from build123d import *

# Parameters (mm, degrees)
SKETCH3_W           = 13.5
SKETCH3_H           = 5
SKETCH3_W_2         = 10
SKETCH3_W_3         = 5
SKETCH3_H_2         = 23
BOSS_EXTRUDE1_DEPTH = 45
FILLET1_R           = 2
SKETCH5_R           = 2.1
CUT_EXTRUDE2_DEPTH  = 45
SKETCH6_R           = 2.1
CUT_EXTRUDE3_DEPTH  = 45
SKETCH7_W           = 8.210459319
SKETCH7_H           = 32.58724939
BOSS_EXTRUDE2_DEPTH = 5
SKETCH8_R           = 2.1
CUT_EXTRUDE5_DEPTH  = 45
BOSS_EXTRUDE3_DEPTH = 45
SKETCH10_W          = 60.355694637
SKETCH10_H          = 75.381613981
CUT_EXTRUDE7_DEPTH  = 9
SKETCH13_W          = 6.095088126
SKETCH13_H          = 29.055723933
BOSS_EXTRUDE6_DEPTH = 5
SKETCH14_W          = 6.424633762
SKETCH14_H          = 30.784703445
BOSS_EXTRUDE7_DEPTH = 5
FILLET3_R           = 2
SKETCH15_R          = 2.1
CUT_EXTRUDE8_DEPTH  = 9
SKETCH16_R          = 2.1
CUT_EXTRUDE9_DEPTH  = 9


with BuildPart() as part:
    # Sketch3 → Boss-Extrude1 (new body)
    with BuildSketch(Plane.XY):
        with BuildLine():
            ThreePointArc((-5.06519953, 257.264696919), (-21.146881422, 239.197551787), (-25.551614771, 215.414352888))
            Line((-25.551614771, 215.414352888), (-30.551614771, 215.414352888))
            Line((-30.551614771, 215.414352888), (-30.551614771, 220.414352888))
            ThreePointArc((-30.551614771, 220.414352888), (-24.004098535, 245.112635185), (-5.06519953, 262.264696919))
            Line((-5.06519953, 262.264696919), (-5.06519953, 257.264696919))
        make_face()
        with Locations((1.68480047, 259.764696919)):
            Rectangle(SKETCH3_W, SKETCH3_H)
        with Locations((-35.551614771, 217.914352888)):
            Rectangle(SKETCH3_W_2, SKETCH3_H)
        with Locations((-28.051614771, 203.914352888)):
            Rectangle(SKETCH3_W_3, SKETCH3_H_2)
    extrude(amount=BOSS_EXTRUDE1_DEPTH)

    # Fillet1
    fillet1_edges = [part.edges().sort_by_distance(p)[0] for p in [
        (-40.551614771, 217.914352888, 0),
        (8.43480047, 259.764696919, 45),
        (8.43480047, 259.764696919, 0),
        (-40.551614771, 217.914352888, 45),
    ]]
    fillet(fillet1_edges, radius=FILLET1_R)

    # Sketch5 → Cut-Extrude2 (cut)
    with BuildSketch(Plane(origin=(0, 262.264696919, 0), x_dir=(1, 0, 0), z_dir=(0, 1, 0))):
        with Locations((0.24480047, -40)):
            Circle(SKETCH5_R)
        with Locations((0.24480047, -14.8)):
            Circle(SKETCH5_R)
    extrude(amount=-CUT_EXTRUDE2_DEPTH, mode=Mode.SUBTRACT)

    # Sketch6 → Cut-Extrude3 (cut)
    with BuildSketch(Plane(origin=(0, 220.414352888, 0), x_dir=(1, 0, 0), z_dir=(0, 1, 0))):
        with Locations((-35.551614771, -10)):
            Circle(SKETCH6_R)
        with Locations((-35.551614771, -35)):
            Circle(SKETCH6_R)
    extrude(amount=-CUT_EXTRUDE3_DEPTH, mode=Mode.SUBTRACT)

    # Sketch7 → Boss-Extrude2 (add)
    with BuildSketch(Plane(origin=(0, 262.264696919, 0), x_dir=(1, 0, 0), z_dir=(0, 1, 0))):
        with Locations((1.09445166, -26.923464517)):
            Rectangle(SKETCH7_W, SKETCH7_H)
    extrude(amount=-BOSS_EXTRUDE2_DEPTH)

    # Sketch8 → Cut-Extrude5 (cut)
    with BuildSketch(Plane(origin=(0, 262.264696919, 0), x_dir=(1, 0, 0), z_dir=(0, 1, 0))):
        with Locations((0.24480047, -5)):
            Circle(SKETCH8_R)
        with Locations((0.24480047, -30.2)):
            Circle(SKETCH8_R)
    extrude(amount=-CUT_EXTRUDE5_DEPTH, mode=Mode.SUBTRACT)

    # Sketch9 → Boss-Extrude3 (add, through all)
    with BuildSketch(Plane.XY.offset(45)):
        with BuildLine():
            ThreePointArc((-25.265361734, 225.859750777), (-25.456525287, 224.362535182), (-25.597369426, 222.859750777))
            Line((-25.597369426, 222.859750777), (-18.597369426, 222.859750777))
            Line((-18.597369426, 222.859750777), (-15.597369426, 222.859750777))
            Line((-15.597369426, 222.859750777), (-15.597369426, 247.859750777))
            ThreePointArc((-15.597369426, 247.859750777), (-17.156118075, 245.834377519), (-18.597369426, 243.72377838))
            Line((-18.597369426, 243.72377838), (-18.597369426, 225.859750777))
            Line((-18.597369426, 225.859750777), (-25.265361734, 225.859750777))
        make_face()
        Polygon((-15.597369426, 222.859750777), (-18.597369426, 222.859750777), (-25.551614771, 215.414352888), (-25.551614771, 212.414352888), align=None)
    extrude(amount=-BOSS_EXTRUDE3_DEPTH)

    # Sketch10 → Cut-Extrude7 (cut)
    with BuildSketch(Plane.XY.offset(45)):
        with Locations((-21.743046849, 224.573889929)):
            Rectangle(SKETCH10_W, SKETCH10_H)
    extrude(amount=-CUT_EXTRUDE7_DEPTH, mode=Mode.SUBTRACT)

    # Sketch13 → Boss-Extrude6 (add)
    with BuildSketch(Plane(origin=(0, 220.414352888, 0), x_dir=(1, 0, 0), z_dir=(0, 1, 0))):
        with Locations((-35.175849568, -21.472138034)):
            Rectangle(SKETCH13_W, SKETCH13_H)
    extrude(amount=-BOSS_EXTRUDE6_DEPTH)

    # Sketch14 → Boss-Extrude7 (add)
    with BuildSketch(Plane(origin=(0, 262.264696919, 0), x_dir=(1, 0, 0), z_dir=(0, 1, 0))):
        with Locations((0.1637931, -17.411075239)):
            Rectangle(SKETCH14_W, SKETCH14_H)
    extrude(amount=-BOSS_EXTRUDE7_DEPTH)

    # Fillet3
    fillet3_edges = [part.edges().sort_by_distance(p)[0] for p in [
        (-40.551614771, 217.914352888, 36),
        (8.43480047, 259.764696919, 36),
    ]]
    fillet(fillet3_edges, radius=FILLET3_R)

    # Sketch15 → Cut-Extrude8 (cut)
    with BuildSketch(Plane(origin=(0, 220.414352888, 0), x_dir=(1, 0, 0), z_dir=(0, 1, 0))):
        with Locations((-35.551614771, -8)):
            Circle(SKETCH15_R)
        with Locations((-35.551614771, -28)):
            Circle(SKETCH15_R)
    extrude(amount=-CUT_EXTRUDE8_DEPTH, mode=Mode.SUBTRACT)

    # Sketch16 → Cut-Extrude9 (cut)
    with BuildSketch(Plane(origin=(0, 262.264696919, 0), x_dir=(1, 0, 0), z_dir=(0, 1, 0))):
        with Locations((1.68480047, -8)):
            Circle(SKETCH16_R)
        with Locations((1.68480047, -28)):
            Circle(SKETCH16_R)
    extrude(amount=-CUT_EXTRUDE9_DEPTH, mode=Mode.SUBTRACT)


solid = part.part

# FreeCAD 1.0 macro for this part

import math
import FreeCAD as App
import Part
import Sketcher
Q = App.Units.Quantity


def edges_at(feature, points):
    """Names of the edges that pass closest to the given points."""
    edges = feature.Shape.Edges
    near = lambda p: min(range(len(edges)), key=lambda i: edges[i].distToShape(Part.Vertex(*p))[0])
    return sorted({f"Edge{near(p) + 1}" for p in points})


def add_polygon(sketch, points):
    """Adds a closed chain of lines whose ends are joined by coincident constraints."""
    first, n = sketch.GeometryCount, len(points)
    for a, b in zip(points, points[1:] + points[:1]):
        sketch.addGeometry(Part.LineSegment(App.Vector(*a, 0), App.Vector(*b, 0)), False)
    for i in range(n):
        sketch.addConstraint(Sketcher.Constraint("Coincident", first + i, 2, first + (i + 1) % n, 1))

doc = App.newDocument("Part")
body = doc.addObject("PartDesign::Body", "Body")

sketch1 = doc.addObject("Sketcher::SketchObject", "Sketch")
body.addObject(sketch1)
sketch1.AttachmentSupport = (doc.XY_Plane, [""])
sketch1.MapMode = "FlatFace"
sketch1.addGeometry([
    Part.ArcOfCircle(Part.Circle(App.Vector(19, 219, 0), App.Vector(0, 0, 1), 45), math.radians(123), math.radians(185)),
    Part.LineSegment(App.Vector(-5, 257, 0), App.Vector(8, 257, 0)),
    Part.LineSegment(App.Vector(8, 257, 0), App.Vector(8, 262, 0)),
    Part.LineSegment(App.Vector(8, 262, 0), App.Vector(-5, 262, 0)),
    Part.ArcOfCircle(Part.Circle(App.Vector(14, 222, 0), App.Vector(0, 0, 1), 45), math.radians(116), math.radians(182)),
    Part.LineSegment(App.Vector(-31, 220, 0), App.Vector(-41, 220, 0)),
    Part.LineSegment(App.Vector(-41, 220, 0), App.Vector(-41, 215, 0)),
    Part.LineSegment(App.Vector(-41, 215, 0), App.Vector(-31, 215, 0)),
    Part.LineSegment(App.Vector(-31, 215, 0), App.Vector(-31, 192, 0)),
    Part.LineSegment(App.Vector(-31, 192, 0), App.Vector(-26, 192, 0)),
    Part.LineSegment(App.Vector(-26, 192, 0), App.Vector(-26, 215, 0)),
], False)
sketch1.addConstraint([
    Sketcher.Constraint("Coincident", 0, 1, 1, 1),
    Sketcher.Constraint("Coincident", 1, 2, 2, 1),
    Sketcher.Constraint("Coincident", 2, 2, 3, 1),
    Sketcher.Constraint("Coincident", 3, 2, 4, 1),
    Sketcher.Constraint("Coincident", 4, 2, 5, 1),
    Sketcher.Constraint("Coincident", 5, 2, 6, 1),
    Sketcher.Constraint("Coincident", 6, 2, 7, 1),
    Sketcher.Constraint("Coincident", 7, 2, 8, 1),
    Sketcher.Constraint("Coincident", 8, 2, 9, 1),
    Sketcher.Constraint("Coincident", 9, 2, 10, 1),
    Sketcher.Constraint("Coincident", 10, 2, 0, 2),
    Sketcher.Constraint("Horizontal", 1),
    Sketcher.Constraint("Vertical", 2),
    Sketcher.Constraint("Horizontal", 3),
    Sketcher.Constraint("Horizontal", 5),
    Sketcher.Constraint("Vertical", 6),
    Sketcher.Constraint("Horizontal", 7),
    Sketcher.Constraint("Vertical", 8),
    Sketcher.Constraint("Horizontal", 9),
    Sketcher.Constraint("Vertical", 10),
    Sketcher.Constraint("Equal", 0, 4),
    Sketcher.Constraint("Horizontal", 7, 2, 10, 2),
    Sketcher.Constraint("Vertical", 0, 1, 3, 2),
    Sketcher.Constraint("Vertical", 4, 2, 7, 2),
    Sketcher.Constraint("Equal", 9, 2),
    Sketcher.Constraint("Equal", 2, 6),
    Sketcher.Constraint("Radius", 0, Q("45 mm")),
    Sketcher.Constraint("DistanceX", 5, 2, 5, 1, Q("10 mm")),
    Sketcher.Constraint("DistanceX", 9, 1, 9, 2, Q("5 mm")),
    Sketcher.Constraint("DistanceY", 8, 2, 8, 1, Q("23 mm")),
    Sketcher.Constraint("DistanceX", 1, 1, 1, 2, Q("13.5 mm")),
    Sketcher.Constraint("DistanceX", 0, 1, -1, 1, Q("5.0652 mm")),
    Sketcher.Constraint("DistanceY", -1, 1, 0, 3, Q("219.41264 mm")),
    Sketcher.Constraint("DistanceX", -1, 1, 4, 3, Q("14.429822 mm")),
    Sketcher.Constraint("DistanceX", -1, 1, 0, 3, Q("19.270408 mm")),
])
pad1 = doc.addObject("PartDesign::Pad", "Pad")
body.addObject(pad1)
pad1.Profile = sketch1
pad1.Length = 45
doc.recompute()

fillet = doc.addObject("PartDesign::Fillet", "Fillet")
body.addObject(fillet)
fillet.Base = (pad1, edges_at(pad1, [
    (-40.552, 217.914, 0),
    (8.435, 259.765, 45),
    (8.435, 259.765, 0),
    (-40.552, 217.914, 45),
]))
fillet.Radius = 2

sketch2 = doc.addObject("Sketcher::SketchObject", "Sketch001")
body.addObject(sketch2)
sketch2.AttachmentSupport = (doc.XZ_Plane, [""])
sketch2.MapMode = "FlatFace"
sketch2.AttachmentOffset = App.Placement(App.Vector(0, 0, -262.264697), App.Rotation())
sketch2.addGeometry([
    Part.Circle(App.Vector(0.2, 40, 0), App.Vector(0, 0, 1), 2.1),
    Part.Circle(App.Vector(0.2, 14.8, 0), App.Vector(0, 0, 1), 2.1),
], False)
sketch2.addConstraint([
    Sketcher.Constraint("Equal", 0, 1),
    Sketcher.Constraint("Vertical", 0, 3, 1, 3),
    Sketcher.Constraint("Diameter", 0, Q("4.2 mm")),
    Sketcher.Constraint("DistanceY", -1, 1, 0, 3, Q("40 mm")),
    Sketcher.Constraint("DistanceY", -1, 1, 1, 3, Q("14.8 mm")),
    Sketcher.Constraint("DistanceX", -1, 1, 0, 3, Q("0.2448 mm")),
])
pocket1 = doc.addObject("PartDesign::Pocket", "Pocket")
body.addObject(pocket1)
pocket1.Profile = sketch2
pocket1.Length = 45
pocket1.Reversed = True

sketch3 = doc.addObject("Sketcher::SketchObject", "Sketch002")
body.addObject(sketch3)
sketch3.AttachmentSupport = (doc.XZ_Plane, [""])
sketch3.MapMode = "FlatFace"
sketch3.AttachmentOffset = App.Placement(App.Vector(0, 0, -220.414353), App.Rotation())
sketch3.addGeometry([
    Part.Circle(App.Vector(-35.6, 10, 0), App.Vector(0, 0, 1), 2.1),
    Part.Circle(App.Vector(-35.6, 35, 0), App.Vector(0, 0, 1), 2.1),
], False)
sketch3.addConstraint([
    Sketcher.Constraint("Equal", 0, 1),
    Sketcher.Constraint("Vertical", 0, 3, 1, 3),
    Sketcher.Constraint("Diameter", 0, Q("4.2 mm")),
    Sketcher.Constraint("DistanceY", -1, 1, 0, 3, Q("10 mm")),
    Sketcher.Constraint("DistanceY", -1, 1, 1, 3, Q("35 mm")),
    Sketcher.Constraint("DistanceX", 0, 3, -1, 1, Q("35.551615 mm")),
])
pocket2 = doc.addObject("PartDesign::Pocket", "Pocket001")
body.addObject(pocket2)
pocket2.Profile = sketch3
pocket2.Length = 45
pocket2.Reversed = True

sketch4 = doc.addObject("Sketcher::SketchObject", "Sketch003")
body.addObject(sketch4)
sketch4.AttachmentSupport = (doc.XZ_Plane, [""])
sketch4.MapMode = "FlatFace"
sketch4.AttachmentOffset = App.Placement(App.Vector(0, 0, -262.264697), App.Rotation())
add_polygon(sketch4, [(-3, 11), (-3, 43), (5, 43), (5, 11)])
sketch4.addConstraint([
    Sketcher.Constraint("Vertical", 0),
    Sketcher.Constraint("Horizontal", 1),
    Sketcher.Constraint("Vertical", 2),
    Sketcher.Constraint("Horizontal", 3),
    Sketcher.Constraint("DistanceX", 1, 1, 1, 2, Q("8.210459 mm")),
    Sketcher.Constraint("DistanceY", 0, 1, 0, 2, Q("32.587249 mm")),
    Sketcher.Constraint("DistanceX", 0, 2, -1, 1, Q("3.010778 mm")),
    Sketcher.Constraint("DistanceY", -1, 1, 0, 2, Q("43.217089 mm")),
])
pad2 = doc.addObject("PartDesign::Pad", "Pad001")
body.addObject(pad2)
pad2.Profile = sketch4
pad2.Length = 5

sketch5 = doc.addObject("Sketcher::SketchObject", "Sketch004")
body.addObject(sketch5)
sketch5.AttachmentSupport = (doc.XZ_Plane, [""])
sketch5.MapMode = "FlatFace"
sketch5.AttachmentOffset = App.Placement(App.Vector(0, 0, -262.264697), App.Rotation())
sketch5.addGeometry([
    Part.Circle(App.Vector(0.2, 5, 0), App.Vector(0, 0, 1), 2.1),
    Part.Circle(App.Vector(0.2, 30.2, 0), App.Vector(0, 0, 1), 2.1),
], False)
sketch5.addConstraint([
    Sketcher.Constraint("Equal", 0, 1),
    Sketcher.Constraint("Vertical", 0, 3, 1, 3),
    Sketcher.Constraint("Diameter", 0, Q("4.2 mm")),
    Sketcher.Constraint("DistanceY", -1, 1, 0, 3, Q("5 mm")),
    Sketcher.Constraint("DistanceY", -1, 1, 1, 3, Q("30.2 mm")),
    Sketcher.Constraint("DistanceX", -1, 1, 0, 3, Q("0.2448 mm")),
])
pocket3 = doc.addObject("PartDesign::Pocket", "Pocket002")
body.addObject(pocket3)
pocket3.Profile = sketch5
pocket3.Length = 45
pocket3.Reversed = True

sketch6 = doc.addObject("Sketcher::SketchObject", "Sketch005")
body.addObject(sketch6)
sketch6.AttachmentSupport = (doc.XY_Plane, [""])
sketch6.MapMode = "FlatFace"
sketch6.AttachmentOffset = App.Placement(App.Vector(0, 0, 45), App.Rotation())
sketch6.addGeometry([
    Part.ArcOfCircle(Part.Circle(App.Vector(19.3, 219.4, 0), App.Vector(0, 0, 1), 45), math.radians(171.76), math.radians(175.61)),
    Part.LineSegment(App.Vector(-25.6, 222.9, 0), App.Vector(-18.6, 222.9, 0)),
    Part.LineSegment(App.Vector(-18.6, 222.9, 0), App.Vector(-25.6, 215.4, 0)),
    Part.LineSegment(App.Vector(-25.6, 215.4, 0), App.Vector(-25.6, 212.4, 0)),
    Part.LineSegment(App.Vector(-25.6, 212.4, 0), App.Vector(-15.6, 222.9, 0)),
    Part.LineSegment(App.Vector(-15.6, 222.9, 0), App.Vector(-15.6, 247.9, 0)),
    Part.ArcOfCircle(Part.Circle(App.Vector(19.3, 219.4, 0), App.Vector(0, 0, 1), 45), math.radians(140.79), math.radians(147.3)),
    Part.LineSegment(App.Vector(-18.6, 243.7, 0), App.Vector(-18.6, 225.9, 0)),
    Part.LineSegment(App.Vector(-18.6, 225.9, 0), App.Vector(-25.3, 225.9, 0)),
], False)
sketch6.addConstraint([
    Sketcher.Constraint("Coincident", 0, 2, 1, 1),
    Sketcher.Constraint("Coincident", 1, 2, 2, 1),
    Sketcher.Constraint("Coincident", 2, 2, 3, 1),
    Sketcher.Constraint("Coincident", 3, 2, 4, 1),
    Sketcher.Constraint("Coincident", 4, 2, 5, 1),
    Sketcher.Constraint("Coincident", 5, 2, 6, 1),
    Sketcher.Constraint("Coincident", 6, 2, 7, 1),
    Sketcher.Constraint("Coincident", 7, 2, 8, 1),
    Sketcher.Constraint("Coincident", 8, 2, 0, 1),
    Sketcher.Constraint("Horizontal", 1),
    Sketcher.Constraint("Vertical", 3),
    Sketcher.Constraint("Vertical", 5),
    Sketcher.Constraint("Vertical", 7),
    Sketcher.Constraint("Horizontal", 8),
    Sketcher.Constraint("Coincident", 6, 3, 0, 3),
    Sketcher.Constraint("Equal", 0, 6),
    Sketcher.Constraint("Horizontal", 1, 2, 4, 2),
    Sketcher.Constraint("Vertical", 1, 2, 6, 2),
    Sketcher.Constraint("Radius", 0, Q("44.999999 mm")),
    Sketcher.Constraint("DistanceX", 1, 1, 1, 2, Q("7 mm")),
    Sketcher.Constraint("DistanceY", 3, 2, 3, 1, Q("3 mm")),
    Sketcher.Constraint("DistanceY", 5, 1, 5, 2, Q("25 mm")),
    Sketcher.Constraint("DistanceX", 1, 2, 4, 2, Q("3 mm")),
    Sketcher.Constraint("DistanceY", 1, 2, 7, 2, Q("3 mm")),
    Sketcher.Constraint("DistanceY", -1, 1, 0, 3, Q("219.41264 mm")),
    Sketcher.Constraint("DistanceX", 0, 2, -1, 1, Q("25.597369 mm")),
    Sketcher.Constraint("DistanceX", 2, 2, 0, 3, Q("44.822022 mm")),
    Sketcher.Constraint("Distance", 2, Q("10.188007 mm")),
])
pad3 = doc.addObject("PartDesign::Pad", "Pad002")
body.addObject(pad3)
pad3.Profile = sketch6
pad3.Length = 45
pad3.Reversed = True

sketch7 = doc.addObject("Sketcher::SketchObject", "Sketch006")
body.addObject(sketch7)
sketch7.AttachmentSupport = (doc.XY_Plane, [""])
sketch7.MapMode = "FlatFace"
sketch7.AttachmentOffset = App.Placement(App.Vector(0, 0, 45), App.Rotation())
add_polygon(sketch7, [(-52, 262), (-52, 187), (8, 187), (8, 262)])
sketch7.addConstraint([
    Sketcher.Constraint("Vertical", 0),
    Sketcher.Constraint("Horizontal", 1),
    Sketcher.Constraint("Vertical", 2),
    Sketcher.Constraint("Horizontal", 3),
    Sketcher.Constraint("DistanceX", -1, 1, 1, 2, Q("8.4348 mm")),
    Sketcher.Constraint("DistanceX", 1, 1, 1, 2, Q("60.355695 mm")),
    Sketcher.Constraint("DistanceY", 0, 2, 0, 1, Q("75.381614 mm")),
    Sketcher.Constraint("DistanceY", -1, 1, 0, 2, Q("186.883083 mm")),
])
pocket4 = doc.addObject("PartDesign::Pocket", "Pocket003")
body.addObject(pocket4)
pocket4.Profile = sketch7
pocket4.Length = 9

sketch8 = doc.addObject("Sketcher::SketchObject", "Sketch007")
body.addObject(sketch8)
sketch8.AttachmentSupport = (doc.XZ_Plane, [""])
sketch8.MapMode = "FlatFace"
sketch8.AttachmentOffset = App.Placement(App.Vector(0, 0, -220.414353), App.Rotation())
add_polygon(sketch8, [(-38, 7), (-38, 36), (-32, 36), (-32, 7)])
sketch8.addConstraint([
    Sketcher.Constraint("Vertical", 0),
    Sketcher.Constraint("Horizontal", 1),
    Sketcher.Constraint("Vertical", 2),
    Sketcher.Constraint("Horizontal", 3),
    Sketcher.Constraint("DistanceY", -1, 1, 0, 2, Q("36 mm")),
    Sketcher.Constraint("DistanceX", 1, 1, 1, 2, Q("6.095088 mm")),
    Sketcher.Constraint("DistanceY", 0, 1, 0, 2, Q("29.055724 mm")),
    Sketcher.Constraint("DistanceX", 0, 2, -1, 1, Q("38.223394 mm")),
])
pad4 = doc.addObject("PartDesign::Pad", "Pad003")
body.addObject(pad4)
pad4.Profile = sketch8
pad4.Length = 5

sketch9 = doc.addObject("Sketcher::SketchObject", "Sketch008")
body.addObject(sketch9)
sketch9.AttachmentSupport = (doc.XZ_Plane, [""])
sketch9.MapMode = "FlatFace"
sketch9.AttachmentOffset = App.Placement(App.Vector(0, 0, -262.264697), App.Rotation())
add_polygon(sketch9, [(-3, 2), (-3, 33), (3, 33), (3, 2)])
sketch9.addConstraint([
    Sketcher.Constraint("Vertical", 0),
    Sketcher.Constraint("Horizontal", 1),
    Sketcher.Constraint("Vertical", 2),
    Sketcher.Constraint("Horizontal", 3),
    Sketcher.Constraint("DistanceX", 1, 1, 1, 2, Q("6.424634 mm")),
    Sketcher.Constraint("DistanceY", 0, 1, 0, 2, Q("30.784703 mm")),
    Sketcher.Constraint("DistanceX", -1, 1, 1, 2, Q("3.37611 mm")),
    Sketcher.Constraint("DistanceY", -1, 1, 0, 2, Q("32.803427 mm")),
])
pad5 = doc.addObject("PartDesign::Pad", "Pad004")
body.addObject(pad5)
pad5.Profile = sketch9
pad5.Length = 5
doc.recompute()

fillet2 = doc.addObject("PartDesign::Fillet", "Fillet001")
body.addObject(fillet2)
fillet2.Base = (pad5, edges_at(pad5, [(-40.552, 217.914, 36), (8.435, 259.765, 36)]))
fillet2.Radius = 2

sketch10 = doc.addObject("Sketcher::SketchObject", "Sketch009")
body.addObject(sketch10)
sketch10.AttachmentSupport = (doc.XZ_Plane, [""])
sketch10.MapMode = "FlatFace"
sketch10.AttachmentOffset = App.Placement(App.Vector(0, 0, -220.414353), App.Rotation())
sketch10.addGeometry([
    Part.Circle(App.Vector(-35.6, 8, 0), App.Vector(0, 0, 1), 2.1),
    Part.Circle(App.Vector(-35.6, 28, 0), App.Vector(0, 0, 1), 2.1),
], False)
sketch10.addConstraint([
    Sketcher.Constraint("Equal", 0, 1),
    Sketcher.Constraint("Vertical", 0, 3, 1, 3),
    Sketcher.Constraint("Diameter", 0, Q("4.2 mm")),
    Sketcher.Constraint("DistanceY", -1, 1, 0, 3, Q("8 mm")),
    Sketcher.Constraint("DistanceY", -1, 1, 1, 3, Q("28 mm")),
    Sketcher.Constraint("DistanceX", 0, 3, -1, 1, Q("35.551615 mm")),
])
pocket5 = doc.addObject("PartDesign::Pocket", "Pocket004")
body.addObject(pocket5)
pocket5.Profile = sketch10
pocket5.Length = 9
pocket5.Reversed = True

sketch11 = doc.addObject("Sketcher::SketchObject", "Sketch010")
body.addObject(sketch11)
sketch11.AttachmentSupport = (doc.XZ_Plane, [""])
sketch11.MapMode = "FlatFace"
sketch11.AttachmentOffset = App.Placement(App.Vector(0, 0, -262.264697), App.Rotation())
sketch11.addGeometry([
    Part.Circle(App.Vector(1.7, 8, 0), App.Vector(0, 0, 1), 2.1),
    Part.Circle(App.Vector(1.7, 28, 0), App.Vector(0, 0, 1), 2.1),
], False)
sketch11.addConstraint([
    Sketcher.Constraint("Equal", 0, 1),
    Sketcher.Constraint("Vertical", 0, 3, 1, 3),
    Sketcher.Constraint("Diameter", 0, Q("4.2 mm")),
    Sketcher.Constraint("DistanceY", -1, 1, 0, 3, Q("8 mm")),
    Sketcher.Constraint("DistanceY", -1, 1, 1, 3, Q("28 mm")),
    Sketcher.Constraint("DistanceX", -1, 1, 0, 3, Q("1.6848 mm")),
])
pocket6 = doc.addObject("PartDesign::Pocket", "Pocket005")
body.addObject(pocket6)
pocket6.Profile = sketch11
pocket6.Length = 9
pocket6.Reversed = True

doc.recompute()
